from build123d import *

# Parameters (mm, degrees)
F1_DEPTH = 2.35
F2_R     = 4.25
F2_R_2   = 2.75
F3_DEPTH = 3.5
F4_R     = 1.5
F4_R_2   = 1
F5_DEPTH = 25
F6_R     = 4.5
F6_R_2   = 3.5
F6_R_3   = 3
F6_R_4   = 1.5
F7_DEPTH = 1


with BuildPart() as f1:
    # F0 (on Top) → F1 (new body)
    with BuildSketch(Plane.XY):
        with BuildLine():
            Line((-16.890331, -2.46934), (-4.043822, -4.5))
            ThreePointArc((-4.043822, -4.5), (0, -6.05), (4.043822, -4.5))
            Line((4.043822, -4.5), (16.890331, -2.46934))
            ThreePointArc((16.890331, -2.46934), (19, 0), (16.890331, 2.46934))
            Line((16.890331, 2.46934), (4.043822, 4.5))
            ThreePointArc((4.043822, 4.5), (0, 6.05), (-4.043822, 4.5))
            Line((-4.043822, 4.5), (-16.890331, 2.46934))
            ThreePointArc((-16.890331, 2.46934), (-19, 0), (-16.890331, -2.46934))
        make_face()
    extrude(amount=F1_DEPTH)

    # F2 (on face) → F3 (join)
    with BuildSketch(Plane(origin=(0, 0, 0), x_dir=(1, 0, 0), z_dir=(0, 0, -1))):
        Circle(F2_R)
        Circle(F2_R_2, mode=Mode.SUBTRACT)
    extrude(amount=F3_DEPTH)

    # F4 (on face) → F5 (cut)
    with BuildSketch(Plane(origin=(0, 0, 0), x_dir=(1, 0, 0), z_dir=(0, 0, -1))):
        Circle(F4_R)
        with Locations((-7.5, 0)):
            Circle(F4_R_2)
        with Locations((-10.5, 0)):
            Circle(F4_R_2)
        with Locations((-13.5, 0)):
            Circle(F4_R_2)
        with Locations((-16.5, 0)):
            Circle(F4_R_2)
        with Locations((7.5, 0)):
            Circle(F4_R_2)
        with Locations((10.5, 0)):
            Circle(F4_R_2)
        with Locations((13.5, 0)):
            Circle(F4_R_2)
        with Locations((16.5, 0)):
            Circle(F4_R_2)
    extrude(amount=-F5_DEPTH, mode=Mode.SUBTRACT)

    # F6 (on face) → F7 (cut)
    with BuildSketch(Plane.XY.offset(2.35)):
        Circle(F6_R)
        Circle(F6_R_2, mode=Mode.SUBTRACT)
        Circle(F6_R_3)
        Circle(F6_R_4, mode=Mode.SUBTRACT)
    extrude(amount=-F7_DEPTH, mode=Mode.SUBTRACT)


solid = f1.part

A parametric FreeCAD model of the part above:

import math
import FreeCAD as App
import Part
import Sketcher
from FreeCAD import Vector

doc = App.newDocument("Part")
body = doc.addObject("PartDesign::Body", "Body")

sketch1 = doc.addObject("Sketcher::SketchObject", "Sketch")
body.addObject(sketch1)
sketch1.AttachmentSupport = (doc.XY_Plane, [""])
sketch1.MapMode = "FlatFace"
sketch1.addGeometry(Part.LineSegment(Vector(-16.9, -2.5, 0), Vector(-4, -4.5, 0)), False)
sketch1.addGeometry(Part.ArcOfCircle(Part.Circle(Vector(0, 0, 0), Vector(0, 0, 1), 6), math.radians(-132), math.radians(-48)), False)
sketch1.addGeometry(Part.LineSegment(Vector(4, -4.5, 0), Vector(16.9, -2.5, 0)), False)
sketch1.addGeometry(Part.ArcOfCircle(Part.Circle(Vector(16.5, 0, 0), Vector(0, 0, 1), 2.5), math.radians(-81), math.radians(81)), False)
sketch1.addGeometry(Part.LineSegment(Vector(16.9, 2.5, 0), Vector(4, 4.5, 0)), False)
sketch1.addGeometry(Part.ArcOfCircle(Part.Circle(Vector(0, 0, 0), Vector(0, 0, 1), 6), math.radians(48), math.radians(132)), False)
sketch1.addGeometry(Part.LineSegment(Vector(-4, 4.5, 0), Vector(-16.9, 2.5, 0)), False)
sketch1.addGeometry(Part.ArcOfCircle(Part.Circle(Vector(-16.5, 0, 0), Vector(0, 0, 1), 2.5), math.radians(99), math.radians(261)), False)
sketch1.addConstraint(Sketcher.Constraint("Coincident", 0, 2, 1, 1))
sketch1.addConstraint(Sketcher.Constraint("Coincident", 1, 2, 2, 1))
sketch1.addConstraint(Sketcher.Constraint("Tangent", 2, 2, 3, 1))
sketch1.addConstraint(Sketcher.Constraint("Tangent", 3, 2, 4, 1))
sketch1.addConstraint(Sketcher.Constraint("Coincident", 4, 2, 5, 1))
sketch1.addConstraint(Sketcher.Constraint("Coincident", 5, 2, 6, 1))
sketch1.addConstraint(Sketcher.Constraint("Tangent", 6, 2, 7, 1))
sketch1.addConstraint(Sketcher.Constraint("Tangent", 7, 2, 0, 1))
sketch1.addConstraint(Sketcher.Constraint("Coincident", 1, 3, -1, 1))
sketch1.addConstraint(Sketcher.Constraint("Coincident", 5, 3, -1, 1))
sketch1.addConstraint(Sketcher.Constraint("Equal", 1, 5))
sketch1.addConstraint(Sketcher.Constraint("Equal", 3, 7))
sketch1.addConstraint(Sketcher.Constraint("Symmetric", 3, 3, 7, 3, -1, 1))
sketch1.addConstraint(Sketcher.Constraint("Symmetric", 3, 2, 6, 2, -2))
sketch1.addConstraint(Sketcher.Constraint("Parallel", 0, 4))
sketch1.addConstraint(Sketcher.Constraint("Parallel", 2, 6))
sketch1.addConstraint(Sketcher.Constraint("Radius", 3, 2.5))
sketch1.addConstraint(Sketcher.Constraint("Radius", 1, 6.049999))
sketch1.addConstraint(Sketcher.Constraint("DistanceX", 7, 3, 3, 3, 33.000001))
sketch1.addConstraint(Sketcher.Constraint("DistanceY", 1, 2, 4, 2, 9.0))
pad1 = doc.addObject("PartDesign::Pad", "Pad")
body.addObject(pad1)
pad1.Profile = sketch1
pad1.Length = 2.35

sketch2 = doc.addObject("Sketcher::SketchObject", "Sketch001")
body.addObject(sketch2)
sketch2.AttachmentSupport = (doc.XY_Plane, [""])
sketch2.MapMode = "FlatFace"
sketch2.addGeometry(Part.Circle(Vector(0, 0, 0), Vector(0, 0, 1), 4.2), False)
sketch2.addGeometry(Part.Circle(Vector(0, 0, 0), Vector(0, 0, 1), 2.8), False)
sketch2.addConstraint(Sketcher.Constraint("Coincident", 0, 3, -1, 1))
sketch2.addConstraint(Sketcher.Constraint("Coincident", 1, 3, -1, 1))
sketch2.addConstraint(Sketcher.Constraint("Diameter", 0, 8.5))
sketch2.addConstraint(Sketcher.Constraint("Diameter", 1, 5.5))
pad2 = doc.addObject("PartDesign::Pad", "Pad001")
body.addObject(pad2)
pad2.Profile = sketch2
pad2.Length = 3.5
pad2.Reversed = True

sketch3 = doc.addObject("Sketcher::SketchObject", "Sketch002")
body.addObject(sketch3)
sketch3.AttachmentSupport = (doc.XY_Plane, [""])
sketch3.MapMode = "FlatFace"
sketch3.addGeometry(Part.Circle(Vector(0, 0, 0), Vector(0, 0, 1), 1.5), False)
sketch3.addGeometry(Part.Circle(Vector(-7.5, 0, 0), Vector(0, 0, 1), 1), False)
sketch3.addGeometry(Part.Circle(Vector(-10.5, 0, 0), Vector(0, 0, 1), 1), False)
sketch3.addGeometry(Part.Circle(Vector(-13.5, 0, 0), Vector(0, 0, 1), 1), False)
sketch3.addGeometry(Part.Circle(Vector(-16.5, 0, 0), Vector(0, 0, 1), 1), False)
sketch3.addGeometry(Part.Circle(Vector(7.5, 0, 0), Vector(0, 0, 1), 1), False)
sketch3.addGeometry(Part.Circle(Vector(10.5, 0, 0), Vector(0, 0, 1), 1), False)
sketch3.addGeometry(Part.Circle(Vector(13.5, 0, 0), Vector(0, 0, 1), 1), False)
sketch3.addGeometry(Part.Circle(Vector(16.5, 0, 0), Vector(0, 0, 1), 1), False)
sketch3.addConstraint(Sketcher.Constraint("Coincident", 0, 3, -1, 1))
sketch3.addConstraint(Sketcher.Constraint("Equal", 1, 2))
sketch3.addConstraint(Sketcher.Constraint("Equal", 2, 3))
sketch3.addConstraint(Sketcher.Constraint("Equal", 3, 4))
sketch3.addConstraint(Sketcher.Constraint("Equal", 4, 5))
sketch3.addConstraint(Sketcher.Constraint("Equal", 5, 6))
sketch3.addConstraint(Sketcher.Constraint("Equal", 6, 7))
sketch3.addConstraint(Sketcher.Constraint("Equal", 7, 8))
sketch3.addConstraint(Sketcher.Constraint("Symmetric", 1, 3, 5, 3, -1, 1))
sketch3.addConstraint(Sketcher.Constraint("Symmetric", 2, 3, 6, 3, -1, 1))
sketch3.addConstraint(Sketcher.Constraint("Symmetric", 3, 3, 7, 3, -1, 1))
sketch3.addConstraint(Sketcher.Constraint("Symmetric", 4, 3, 8, 3, -1, 1))
sketch3.addConstraint(Sketcher.Constraint("PointOnObject", 1, 3, -1))
sketch3.addConstraint(Sketcher.Constraint("PointOnObject", 2, 3, -1))
sketch3.addConstraint(Sketcher.Constraint("PointOnObject", 3, 3, -1))
sketch3.addConstraint(Sketcher.Constraint("PointOnObject", 4, 3, -1))
sketch3.addConstraint(Sketcher.Constraint("Diameter", 0, 3.0))
sketch3.addConstraint(Sketcher.Constraint("Diameter", 1, 2.0))
sketch3.addConstraint(Sketcher.Constraint("DistanceX", 2, 3, 1, 3, 3.0))
sketch3.addConstraint(Sketcher.Constraint("DistanceX", 3, 3, 2, 3, 3.0))
sketch3.addConstraint(Sketcher.Constraint("DistanceX", 4, 3, 3, 3, 3.0))
sketch3.addConstraint(Sketcher.Constraint("DistanceX", 1, 3, 5, 3, 15.0))
pocket1 = doc.addObject("PartDesign::Pocket", "Pocket")
body.addObject(pocket1)
pocket1.Profile = sketch3
pocket1.Length = 25
pocket1.Reversed = True

sketch4 = doc.addObject("Sketcher::SketchObject", "Sketch003")
body.addObject(sketch4)
sketch4.AttachmentSupport = (doc.XY_Plane, [""])
sketch4.MapMode = "FlatFace"
sketch4.AttachmentOffset = App.Placement(Vector(0, 0, 2.35), App.Rotation())
sketch4.addGeometry(Part.Circle(Vector(0, 0, 0), Vector(0, 0, 1), 4.5), False)
sketch4.addGeometry(Part.Circle(Vector(0, 0, 0), Vector(0, 0, 1), 3.5), False)
sketch4.addGeometry(Part.Circle(Vector(0, 0, 0), Vector(0, 0, 1), 3), False)
sketch4.addGeometry(Part.Circle(Vector(0, 0, 0), Vector(0, 0, 1), 1.5), False)
sketch4.addConstraint(Sketcher.Constraint("Coincident", 0, 3, -1, 1))
sketch4.addConstraint(Sketcher.Constraint("Coincident", 1, 3, -1, 1))
sketch4.addConstraint(Sketcher.Constraint("Coincident", 2, 3, -1, 1))
sketch4.addConstraint(Sketcher.Constraint("Coincident", 3, 3, -1, 1))
sketch4.addConstraint(Sketcher.Constraint("Diameter", 0, 9.0))
sketch4.addConstraint(Sketcher.Constraint("Diameter", 1, 7.0))
sketch4.addConstraint(Sketcher.Constraint("Diameter", 2, 6.0))
sketch4.addConstraint(Sketcher.Constraint("Diameter", 3, 3.0))
pocket2 = doc.addObject("PartDesign::Pocket", "Pocket001")
body.addObject(pocket2)
pocket2.Profile = sketch4
pocket2.Length = 1

doc.recompute()
